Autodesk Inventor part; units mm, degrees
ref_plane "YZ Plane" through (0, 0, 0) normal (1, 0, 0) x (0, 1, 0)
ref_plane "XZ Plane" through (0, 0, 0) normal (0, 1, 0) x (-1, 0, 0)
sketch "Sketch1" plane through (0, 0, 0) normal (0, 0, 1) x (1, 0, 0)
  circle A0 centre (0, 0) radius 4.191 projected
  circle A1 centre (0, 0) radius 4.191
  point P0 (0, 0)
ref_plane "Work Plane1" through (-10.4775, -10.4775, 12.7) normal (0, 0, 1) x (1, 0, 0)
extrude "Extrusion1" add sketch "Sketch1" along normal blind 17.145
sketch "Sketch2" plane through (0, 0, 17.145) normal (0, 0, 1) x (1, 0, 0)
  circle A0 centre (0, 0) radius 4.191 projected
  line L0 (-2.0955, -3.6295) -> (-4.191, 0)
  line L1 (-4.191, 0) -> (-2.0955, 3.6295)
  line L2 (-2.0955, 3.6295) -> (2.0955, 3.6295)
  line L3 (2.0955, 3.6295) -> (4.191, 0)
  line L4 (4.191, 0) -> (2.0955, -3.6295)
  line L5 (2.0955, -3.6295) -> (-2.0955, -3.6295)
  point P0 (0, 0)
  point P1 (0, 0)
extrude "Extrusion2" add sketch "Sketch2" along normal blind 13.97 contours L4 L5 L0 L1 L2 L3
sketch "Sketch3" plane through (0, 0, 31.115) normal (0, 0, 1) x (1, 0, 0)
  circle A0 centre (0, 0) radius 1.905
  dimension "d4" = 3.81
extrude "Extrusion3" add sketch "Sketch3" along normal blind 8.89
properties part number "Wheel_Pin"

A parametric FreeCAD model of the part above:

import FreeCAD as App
import Part
import Sketcher
Q = App.Units.Quantity


def add_polygon(sketch, points):
    """Adds a closed chain of lines whose ends are joined by coincident constraints."""
    first, n = sketch.GeometryCount, len(points)
    for a, b in zip(points, points[1:] + points[:1]):
        sketch.addGeometry(Part.LineSegment(App.Vector(*a, 0), App.Vector(*b, 0)), False)
    for i in range(n):
        sketch.addConstraint(Sketcher.Constraint("Coincident", first + i, 2, first + (i + 1) % n, 1))

doc = App.newDocument("Part")
body = doc.addObject("PartDesign::Body", "Body")

# Sketch on XY plane
sketch1 = body.newObject("Sketcher::SketchObject", "Sketch")
sketch1.AttachmentSupport = (doc.getObject("XY_Plane"), [""])
sketch1.MapMode = "FlatFace"
sketch1.addGeometry(Part.Circle(App.Vector(0, 0, 0), App.Vector(0, 0, 1), 4.2), False)
sketch1.addConstraint(Sketcher.Constraint("Coincident", 0, 3, -1, 1))
sketch1.addConstraint(Sketcher.Constraint("Diameter", 0, Q("0.33 in")))
pad1 = body.newObject("PartDesign::Pad", "Pad")
pad1.Profile = sketch1
pad1.Length = Q("0.675 in")

# Sketch on XY plane
sketch2 = body.newObject("Sketcher::SketchObject", "Sketch001")
sketch2.AttachmentSupport = (doc.getObject("XY_Plane"), [""])
sketch2.MapMode = "FlatFace"
sketch2.AttachmentOffset = App.Placement(App.Vector(0, 0, 0.675 * 25.4), App.Rotation())
add_polygon(sketch2, [(2.1, -3.6), (4.2, 0), (2.1, 3.6), (-2.1, 3.6), (-4.2, 0), (-2.1, -3.6)])  # lines 0-5
sketch2.addConstraint(Sketcher.Constraint("Horizontal", 2))
sketch2.addConstraint(Sketcher.Constraint("Horizontal", 5))
sketch2.addConstraint(Sketcher.Constraint("Symmetric", 0, 2, 3, 2, -1, 1))
sketch2.addConstraint(Sketcher.Constraint("Symmetric", 1, 2, 4, 2, -1, 1))
sketch2.addConstraint(Sketcher.Constraint("PointOnObject", 0, 2, -1))
sketch2.addConstraint(Sketcher.Constraint("Parallel", 0, 3))
sketch2.addConstraint(Sketcher.Constraint("Vertical", 2, 2, 4, 2))
sketch2.addConstraint(Sketcher.Constraint("Angle", 0, Q("60 deg")))
sketch2.addConstraint(Sketcher.Constraint("DistanceX", 2, 2, 2, 1, Q("0.165 in")))
sketch2.addConstraint(Sketcher.Constraint("DistanceX", 3, 2, 0, 2, Q("0.33 in")))
pad2 = body.newObject("PartDesign::Pad", "Pad001")
pad2.Profile = sketch2
pad2.Length = Q("0.55 in")

# Sketch on XY plane
sketch3 = body.newObject("Sketcher::SketchObject", "Sketch002")
sketch3.AttachmentSupport = (doc.getObject("XY_Plane"), [""])
sketch3.MapMode = "FlatFace"
sketch3.AttachmentOffset = App.Placement(App.Vector(0, 0, 1.225 * 25.4), App.Rotation())
sketch3.addGeometry(Part.Circle(App.Vector(0, 0, 0), App.Vector(0, 0, 1), 1.9), False)
sketch3.addConstraint(Sketcher.Constraint("Coincident", 0, 3, -1, 1))
sketch3.addConstraint(Sketcher.Constraint("Diameter", 0, Q("0.15 in")))
pad3 = body.newObject("PartDesign::Pad", "Pad002")
pad3.Profile = sketch3
pad3.Length = Q("0.35 in")

doc.recompute()
